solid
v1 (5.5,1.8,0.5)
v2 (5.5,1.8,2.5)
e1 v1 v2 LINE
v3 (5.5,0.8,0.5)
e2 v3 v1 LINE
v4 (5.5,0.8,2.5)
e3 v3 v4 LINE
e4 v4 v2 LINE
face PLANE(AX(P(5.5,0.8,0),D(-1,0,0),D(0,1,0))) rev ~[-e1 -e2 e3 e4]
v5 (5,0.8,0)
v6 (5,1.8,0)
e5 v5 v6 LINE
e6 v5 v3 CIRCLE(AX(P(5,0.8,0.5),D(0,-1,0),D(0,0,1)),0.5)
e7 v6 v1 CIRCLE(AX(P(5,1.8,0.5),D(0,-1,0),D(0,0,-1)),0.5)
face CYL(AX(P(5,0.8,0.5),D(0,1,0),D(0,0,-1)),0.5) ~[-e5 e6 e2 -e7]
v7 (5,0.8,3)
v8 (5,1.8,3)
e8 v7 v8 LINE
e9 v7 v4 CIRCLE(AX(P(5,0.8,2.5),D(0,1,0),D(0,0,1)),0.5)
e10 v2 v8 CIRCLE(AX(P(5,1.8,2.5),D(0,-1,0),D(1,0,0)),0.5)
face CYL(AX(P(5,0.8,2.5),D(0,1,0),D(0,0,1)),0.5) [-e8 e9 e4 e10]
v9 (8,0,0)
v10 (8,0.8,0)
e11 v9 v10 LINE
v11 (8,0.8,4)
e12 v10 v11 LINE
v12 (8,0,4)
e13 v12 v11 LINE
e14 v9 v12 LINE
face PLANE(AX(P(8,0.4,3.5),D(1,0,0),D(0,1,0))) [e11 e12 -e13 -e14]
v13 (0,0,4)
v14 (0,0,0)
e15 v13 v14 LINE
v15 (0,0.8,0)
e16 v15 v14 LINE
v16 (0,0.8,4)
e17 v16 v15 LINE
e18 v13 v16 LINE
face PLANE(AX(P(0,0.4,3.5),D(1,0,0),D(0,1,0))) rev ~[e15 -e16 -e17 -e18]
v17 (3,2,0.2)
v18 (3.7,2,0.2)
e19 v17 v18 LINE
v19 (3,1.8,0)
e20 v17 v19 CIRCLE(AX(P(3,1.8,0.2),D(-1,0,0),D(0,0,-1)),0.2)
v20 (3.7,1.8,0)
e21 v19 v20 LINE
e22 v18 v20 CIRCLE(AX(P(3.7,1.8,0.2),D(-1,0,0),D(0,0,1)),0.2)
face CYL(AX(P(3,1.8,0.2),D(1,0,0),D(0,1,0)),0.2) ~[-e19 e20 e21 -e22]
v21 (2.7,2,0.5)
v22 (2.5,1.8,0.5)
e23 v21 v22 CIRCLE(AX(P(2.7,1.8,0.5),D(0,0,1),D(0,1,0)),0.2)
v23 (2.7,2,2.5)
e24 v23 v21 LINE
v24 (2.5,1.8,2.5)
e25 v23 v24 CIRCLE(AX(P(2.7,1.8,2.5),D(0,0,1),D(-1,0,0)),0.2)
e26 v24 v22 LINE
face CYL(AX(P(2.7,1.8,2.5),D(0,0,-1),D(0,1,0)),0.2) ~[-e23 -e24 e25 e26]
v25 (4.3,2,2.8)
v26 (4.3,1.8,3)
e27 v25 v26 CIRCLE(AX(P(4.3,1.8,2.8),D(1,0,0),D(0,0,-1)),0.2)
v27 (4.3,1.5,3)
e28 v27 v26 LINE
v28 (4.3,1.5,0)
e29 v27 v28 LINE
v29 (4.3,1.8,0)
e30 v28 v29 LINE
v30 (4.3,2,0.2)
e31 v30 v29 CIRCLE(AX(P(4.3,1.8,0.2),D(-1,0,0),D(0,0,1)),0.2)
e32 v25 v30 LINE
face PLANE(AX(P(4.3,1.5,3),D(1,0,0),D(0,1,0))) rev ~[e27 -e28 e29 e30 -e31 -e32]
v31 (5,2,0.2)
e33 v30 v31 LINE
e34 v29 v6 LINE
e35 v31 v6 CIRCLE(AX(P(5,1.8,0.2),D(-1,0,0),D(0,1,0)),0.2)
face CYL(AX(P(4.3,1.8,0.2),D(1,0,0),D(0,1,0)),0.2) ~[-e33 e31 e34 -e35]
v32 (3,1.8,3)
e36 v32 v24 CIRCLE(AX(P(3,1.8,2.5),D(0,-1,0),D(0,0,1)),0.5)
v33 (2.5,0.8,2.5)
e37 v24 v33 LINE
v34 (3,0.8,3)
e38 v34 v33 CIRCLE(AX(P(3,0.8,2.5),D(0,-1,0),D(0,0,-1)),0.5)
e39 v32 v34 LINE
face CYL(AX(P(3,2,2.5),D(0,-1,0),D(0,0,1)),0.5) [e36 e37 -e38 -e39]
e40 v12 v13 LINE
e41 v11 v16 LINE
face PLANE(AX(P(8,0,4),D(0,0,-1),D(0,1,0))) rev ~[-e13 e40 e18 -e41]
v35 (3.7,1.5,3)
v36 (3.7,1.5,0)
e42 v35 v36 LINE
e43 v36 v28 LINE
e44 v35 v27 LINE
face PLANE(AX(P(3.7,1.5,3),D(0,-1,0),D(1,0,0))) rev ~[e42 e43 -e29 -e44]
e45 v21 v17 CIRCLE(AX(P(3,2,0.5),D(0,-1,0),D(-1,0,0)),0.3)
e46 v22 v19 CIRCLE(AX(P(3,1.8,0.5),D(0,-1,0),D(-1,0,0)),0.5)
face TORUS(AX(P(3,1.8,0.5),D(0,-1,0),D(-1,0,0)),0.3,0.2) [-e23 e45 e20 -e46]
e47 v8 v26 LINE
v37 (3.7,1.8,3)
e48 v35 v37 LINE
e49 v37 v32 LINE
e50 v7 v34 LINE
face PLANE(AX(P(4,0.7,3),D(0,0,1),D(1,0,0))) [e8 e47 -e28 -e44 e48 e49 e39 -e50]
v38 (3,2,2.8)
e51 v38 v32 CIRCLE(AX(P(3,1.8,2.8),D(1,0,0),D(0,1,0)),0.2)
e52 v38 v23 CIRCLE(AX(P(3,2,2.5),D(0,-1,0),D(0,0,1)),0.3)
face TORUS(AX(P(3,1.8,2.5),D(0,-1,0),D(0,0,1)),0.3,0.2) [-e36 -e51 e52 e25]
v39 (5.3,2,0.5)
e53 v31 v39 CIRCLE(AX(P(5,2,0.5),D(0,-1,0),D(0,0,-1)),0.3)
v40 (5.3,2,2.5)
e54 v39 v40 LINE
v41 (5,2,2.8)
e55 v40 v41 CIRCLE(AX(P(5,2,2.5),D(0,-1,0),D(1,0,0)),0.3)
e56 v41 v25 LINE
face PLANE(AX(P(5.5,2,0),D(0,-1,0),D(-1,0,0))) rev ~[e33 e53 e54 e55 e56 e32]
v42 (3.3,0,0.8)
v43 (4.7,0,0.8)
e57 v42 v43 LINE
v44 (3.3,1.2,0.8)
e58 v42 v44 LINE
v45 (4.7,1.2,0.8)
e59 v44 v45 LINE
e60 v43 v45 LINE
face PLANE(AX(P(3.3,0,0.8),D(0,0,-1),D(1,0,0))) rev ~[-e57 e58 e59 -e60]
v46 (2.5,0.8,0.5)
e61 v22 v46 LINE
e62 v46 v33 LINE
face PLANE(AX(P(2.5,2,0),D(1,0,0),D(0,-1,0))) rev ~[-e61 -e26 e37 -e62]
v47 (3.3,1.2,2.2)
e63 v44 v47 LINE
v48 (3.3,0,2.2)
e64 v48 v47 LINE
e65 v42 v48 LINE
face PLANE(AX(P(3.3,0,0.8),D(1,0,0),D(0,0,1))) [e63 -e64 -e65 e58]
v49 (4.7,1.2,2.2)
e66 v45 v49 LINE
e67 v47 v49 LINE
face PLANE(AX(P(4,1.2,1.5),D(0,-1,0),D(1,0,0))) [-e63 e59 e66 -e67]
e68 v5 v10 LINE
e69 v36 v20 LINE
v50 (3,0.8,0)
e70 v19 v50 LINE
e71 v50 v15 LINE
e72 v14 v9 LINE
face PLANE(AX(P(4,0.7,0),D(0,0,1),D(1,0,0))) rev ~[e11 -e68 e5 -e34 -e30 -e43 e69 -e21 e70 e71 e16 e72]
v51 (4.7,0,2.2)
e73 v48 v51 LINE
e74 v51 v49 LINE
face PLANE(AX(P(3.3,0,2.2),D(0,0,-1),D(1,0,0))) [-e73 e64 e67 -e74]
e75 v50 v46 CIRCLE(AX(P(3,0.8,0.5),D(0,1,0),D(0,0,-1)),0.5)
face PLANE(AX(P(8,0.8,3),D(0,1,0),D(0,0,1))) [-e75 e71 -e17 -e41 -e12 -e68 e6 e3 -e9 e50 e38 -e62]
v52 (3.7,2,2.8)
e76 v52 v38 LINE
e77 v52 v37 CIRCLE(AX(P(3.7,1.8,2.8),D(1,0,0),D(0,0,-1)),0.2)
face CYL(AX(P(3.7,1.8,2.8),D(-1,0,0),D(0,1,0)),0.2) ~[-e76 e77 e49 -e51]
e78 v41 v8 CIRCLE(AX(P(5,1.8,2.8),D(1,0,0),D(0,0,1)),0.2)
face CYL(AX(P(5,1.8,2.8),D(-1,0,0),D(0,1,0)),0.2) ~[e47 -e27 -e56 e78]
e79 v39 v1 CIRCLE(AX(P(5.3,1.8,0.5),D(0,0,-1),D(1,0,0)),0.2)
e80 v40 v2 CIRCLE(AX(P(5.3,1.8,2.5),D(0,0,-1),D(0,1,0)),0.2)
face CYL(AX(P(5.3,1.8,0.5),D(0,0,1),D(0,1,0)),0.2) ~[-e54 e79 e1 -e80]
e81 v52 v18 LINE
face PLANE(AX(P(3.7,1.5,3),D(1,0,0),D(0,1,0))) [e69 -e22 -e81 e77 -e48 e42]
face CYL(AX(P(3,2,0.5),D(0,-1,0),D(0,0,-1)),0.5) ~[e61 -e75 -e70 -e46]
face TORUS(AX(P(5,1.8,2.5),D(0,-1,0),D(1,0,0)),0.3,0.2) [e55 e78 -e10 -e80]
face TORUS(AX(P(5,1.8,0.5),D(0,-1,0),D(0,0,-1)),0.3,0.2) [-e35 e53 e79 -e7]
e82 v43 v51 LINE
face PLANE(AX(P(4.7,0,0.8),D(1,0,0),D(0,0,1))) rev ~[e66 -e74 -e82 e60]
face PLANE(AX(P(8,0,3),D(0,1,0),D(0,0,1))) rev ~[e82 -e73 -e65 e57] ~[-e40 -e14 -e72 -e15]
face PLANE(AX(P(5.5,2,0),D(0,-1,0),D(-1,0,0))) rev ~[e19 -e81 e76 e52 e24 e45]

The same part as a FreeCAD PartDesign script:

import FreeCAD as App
import Part
import Sketcher
from FreeCAD import Vector


def edges_at(feature, points):
    """Names of the edges that pass closest to the given points."""
    edges = feature.Shape.Edges
    near = lambda p: min(range(len(edges)), key=lambda i: edges[i].distToShape(Part.Vertex(*p))[0])
    return sorted({f"Edge{near(p) + 1}" for p in points})


def add_polygon(sketch, points):
    """Adds a closed chain of lines whose ends are joined by coincident constraints."""
    first, n = sketch.GeometryCount, len(points)
    for a, b in zip(points, points[1:] + points[:1]):
        sketch.addGeometry(Part.LineSegment(App.Vector(*a, 0), App.Vector(*b, 0)), False)
    for i in range(n):
        sketch.addConstraint(Sketcher.Constraint("Coincident", first + i, 2, first + (i + 1) % n, 1))

doc = App.newDocument("Part")
params = doc.addObject("Spreadsheet::Sheet", "Params")
for row, (alias, value) in enumerate([
    ("sketch1_width", "8 mm"),
    ("sketch1_width2", "3 mm"),
    ("sketch1_height", "0.8 mm"),
    ("sketch1_height2", "1.2 mm"),
    ("pad1_length", "3 mm"),
    ("sketch2_width", "1.4 mm"),
    ("pocket1_length", "1.2 mm"),
    ("fillet_radius", "0.5 mm"),
    ("sketch3_height", "1 mm"),
    ("sketch3_width", "0.8 mm"),
    ("pad2_length", "8 mm"),
    ("sketch4_width", "0.6 mm"),
    ("sketch4_height", "0.5 mm"),
    ("fillet2_radius", "0.2 mm"),
], start=1):
    params.set(f"A{row}", alias)
    params.set(f"B{row}", "=" + value)
    params.setAlias(f"B{row}", alias)

body = doc.addObject("PartDesign::Body", "Body")

# Sketch on XY plane
sketch1 = body.newObject("Sketcher::SketchObject", "Sketch")
sketch1.AttachmentSupport = (doc.getObject("XY_Plane"), [""])
sketch1.MapMode = "FlatFace"
add_polygon(sketch1, [(0, 0.8), (0, 0), (8, 0), (8, 0.8), (5.5, 0.8), (5.5, 2), (2.5, 2), (2.5, 0.8)])  # lines 0-7
sketch1.addConstraint([
    Sketcher.Constraint("Vertical", 0),
    Sketcher.Constraint("Horizontal", 1),
    Sketcher.Constraint("Vertical", 2),
    Sketcher.Constraint("Horizontal", 3),
    Sketcher.Constraint("Vertical", 4),
    Sketcher.Constraint("Horizontal", 5),
    Sketcher.Constraint("Vertical", 6),
    Sketcher.Constraint("Horizontal", 7),
    Sketcher.Constraint("Coincident", 0, 2, -1, 1),
    Sketcher.Constraint("Horizontal", 3, 2, 6, 2),
    Sketcher.Constraint("Equal", 3, 7),
    Sketcher.Constraint("DistanceX", 1, 1, 1, 2, 8.0),
    Sketcher.Constraint("DistanceX", 5, 2, 5, 1, 3.0),
    Sketcher.Constraint("DistanceY", 0, 2, 0, 1, 0.8),
    Sketcher.Constraint("DistanceY", 4, 1, 4, 2, 1.2),
])
sketch1.setExpression("Constraints[19]", "Params.sketch1_width")
sketch1.setExpression("Constraints[20]", "Params.sketch1_width2")
sketch1.setExpression("Constraints[21]", "Params.sketch1_height")
sketch1.setExpression("Constraints[22]", "Params.sketch1_height2")
pad1 = body.newObject("PartDesign::Pad", "Pad")
pad1.Profile = sketch1
pad1.setExpression("Length", "Params.pad1_length")

# Sketch on XZ plane
sketch2 = body.newObject("Sketcher::SketchObject", "Sketch001")
sketch2.AttachmentSupport = (doc.getObject("XZ_Plane"), [""])
sketch2.MapMode = "FlatFace"
add_polygon(sketch2, [(3.3, 2.2), (3.3, 0.8), (4.7, 0.8), (4.7, 2.2)])  # lines 0-3
sketch2.addConstraint([
    Sketcher.Constraint("Vertical", 0),
    Sketcher.Constraint("Horizontal", 1),
    Sketcher.Constraint("Vertical", 2),
    Sketcher.Constraint("Horizontal", 3),
    Sketcher.Constraint("Equal", 3, 0),
    Sketcher.Constraint("DistanceX", 1, 1, 1, 2, 1.4),
    Sketcher.Constraint("DistanceX", -1, 1, 0, 2, 3.3),
    Sketcher.Constraint("DistanceY", -1, 1, 0, 2, 0.8),
])
sketch2.setExpression("Constraints[9]", "Params.sketch2_width")
pocket1 = body.newObject("PartDesign::Pocket", "Pocket")
pocket1.Profile = sketch2
pocket1.setExpression("Length", "Params.pocket1_length")
doc.recompute()

fillet = body.newObject("PartDesign::Fillet", "Fillet")
fillet.Base = (pocket1, edges_at(pocket1, [
    (5.5, 1.4, 3),
    (2.5, 1.4, 3),
    (2.5, 1.4, 0),
    (5.5, 1.4, 0),
]))
fillet.setExpression("Radius", "Params.fillet_radius")

# Sketch on YZ plane
sketch3 = body.newObject("Sketcher::SketchObject", "Sketch002")
sketch3.AttachmentSupport = (doc.getObject("YZ_Plane"), [""])
sketch3.MapMode = "FlatFace"
sketch3.AttachmentOffset = App.Placement(Vector(0, 0, 8), App.Rotation())
add_polygon(sketch3, [(0, 4), (0, 3), (0.8, 3), (0.8, 4)])  # lines 0-3
sketch3.addConstraint([
    Sketcher.Constraint("Vertical", 0),
    Sketcher.Constraint("Horizontal", 1),
    Sketcher.Constraint("Vertical", 2),
    Sketcher.Constraint("Horizontal", 3),
    Sketcher.Constraint("PointOnObject", 0, 2, -2),
    Sketcher.Constraint("DistanceY", 0, 2, 0, 1, 1.0),
    Sketcher.Constraint("DistanceX", 1, 1, 1, 2, 0.8),
    Sketcher.Constraint("DistanceY", -1, 1, 0, 2, 3.0),
])
sketch3.setExpression("Constraints[9]", "Params.sketch3_height")
sketch3.setExpression("Constraints[10]", "Params.sketch3_width")
pad2 = body.newObject("PartDesign::Pad", "Pad001")
pad2.Profile = sketch3
pad2.setExpression("Length", "Params.pad2_length")
pad2.Reversed = True

# Sketch on XY plane
sketch4 = body.newObject("Sketcher::SketchObject", "Sketch003")
sketch4.AttachmentSupport = (doc.getObject("XY_Plane"), [""])
sketch4.MapMode = "FlatFace"
sketch4.AttachmentOffset = App.Placement(Vector(0, 0, 3), App.Rotation())
add_polygon(sketch4, [(3.7, 2), (3.7, 1.5), (4.3, 1.5), (4.3, 2)])  # lines 0-3
sketch4.addConstraint([
    Sketcher.Constraint("Vertical", 0),
    Sketcher.Constraint("Horizontal", 1),
    Sketcher.Constraint("Vertical", 2),
    Sketcher.Constraint("Horizontal", 3),
    Sketcher.Constraint("DistanceX", 1, 1, 1, 2, 0.6),
    Sketcher.Constraint("DistanceY", 0, 2, 0, 1, 0.5),
    Sketcher.Constraint("DistanceY", -1, 1, 2, 2, 2.0),
    Sketcher.Constraint("DistanceX", -1, 1, 0, 2, 3.7),
])
sketch4.setExpression("Constraints[8]", "Params.sketch4_width")
sketch4.setExpression("Constraints[9]", "Params.sketch4_height")
pocket2 = body.newObject("PartDesign::Pocket", "Pocket001")
pocket2.Profile = sketch4
pocket2.Type = "ThroughAll"
doc.recompute()

fillet2 = body.newObject("PartDesign::Fillet", "Fillet001")
fillet2.Base = (pocket2, edges_at(pocket2, [
    (3.35, 2, 3),
    (4.65, 2, 3),
    (5.354, 2, 2.854),
    (5.5, 2, 1.5),
    (5.354, 2, 0.146),
    (3.35, 2, 0),
    (4.65, 2, 0),
    (2.646, 2, 0.146),
    (2.5, 2, 1.5),
    (2.646, 2, 2.854),
]))
fillet2.setExpression("Radius", "Params.fillet2_radius")

doc.recompute()
